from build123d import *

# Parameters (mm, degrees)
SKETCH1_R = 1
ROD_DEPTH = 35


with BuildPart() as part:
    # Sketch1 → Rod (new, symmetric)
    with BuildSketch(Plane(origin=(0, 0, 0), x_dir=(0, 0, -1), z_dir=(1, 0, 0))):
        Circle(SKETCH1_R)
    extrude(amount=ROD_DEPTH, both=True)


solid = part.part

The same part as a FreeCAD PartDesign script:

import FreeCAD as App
import Part
import Sketcher
from FreeCAD import Vector

doc = App.newDocument("Part")
body = doc.addObject("PartDesign::Body", "Body")

# Sketch on YZ plane
sketch1 = body.newObject("Sketcher::SketchObject", "Sketch")
sketch1.AttachmentSupport = (doc.getObject("YZ_Plane"), [""])
sketch1.MapMode = "FlatFace"
sketch1.addGeometry(Part.Circle(Vector(0, 0, 0), Vector(0, 0, 1), 1), False)
sketch1.addConstraint([
    Sketcher.Constraint("Coincident", 0, 3, -1, 1),
    Sketcher.Constraint("Diameter", 0, 2.0),
])
pad1 = body.newObject("PartDesign::Pad", "Pad")
pad1.Profile = sketch1
pad1.Length = 70
pad1.Midplane = True

doc.recompute()
